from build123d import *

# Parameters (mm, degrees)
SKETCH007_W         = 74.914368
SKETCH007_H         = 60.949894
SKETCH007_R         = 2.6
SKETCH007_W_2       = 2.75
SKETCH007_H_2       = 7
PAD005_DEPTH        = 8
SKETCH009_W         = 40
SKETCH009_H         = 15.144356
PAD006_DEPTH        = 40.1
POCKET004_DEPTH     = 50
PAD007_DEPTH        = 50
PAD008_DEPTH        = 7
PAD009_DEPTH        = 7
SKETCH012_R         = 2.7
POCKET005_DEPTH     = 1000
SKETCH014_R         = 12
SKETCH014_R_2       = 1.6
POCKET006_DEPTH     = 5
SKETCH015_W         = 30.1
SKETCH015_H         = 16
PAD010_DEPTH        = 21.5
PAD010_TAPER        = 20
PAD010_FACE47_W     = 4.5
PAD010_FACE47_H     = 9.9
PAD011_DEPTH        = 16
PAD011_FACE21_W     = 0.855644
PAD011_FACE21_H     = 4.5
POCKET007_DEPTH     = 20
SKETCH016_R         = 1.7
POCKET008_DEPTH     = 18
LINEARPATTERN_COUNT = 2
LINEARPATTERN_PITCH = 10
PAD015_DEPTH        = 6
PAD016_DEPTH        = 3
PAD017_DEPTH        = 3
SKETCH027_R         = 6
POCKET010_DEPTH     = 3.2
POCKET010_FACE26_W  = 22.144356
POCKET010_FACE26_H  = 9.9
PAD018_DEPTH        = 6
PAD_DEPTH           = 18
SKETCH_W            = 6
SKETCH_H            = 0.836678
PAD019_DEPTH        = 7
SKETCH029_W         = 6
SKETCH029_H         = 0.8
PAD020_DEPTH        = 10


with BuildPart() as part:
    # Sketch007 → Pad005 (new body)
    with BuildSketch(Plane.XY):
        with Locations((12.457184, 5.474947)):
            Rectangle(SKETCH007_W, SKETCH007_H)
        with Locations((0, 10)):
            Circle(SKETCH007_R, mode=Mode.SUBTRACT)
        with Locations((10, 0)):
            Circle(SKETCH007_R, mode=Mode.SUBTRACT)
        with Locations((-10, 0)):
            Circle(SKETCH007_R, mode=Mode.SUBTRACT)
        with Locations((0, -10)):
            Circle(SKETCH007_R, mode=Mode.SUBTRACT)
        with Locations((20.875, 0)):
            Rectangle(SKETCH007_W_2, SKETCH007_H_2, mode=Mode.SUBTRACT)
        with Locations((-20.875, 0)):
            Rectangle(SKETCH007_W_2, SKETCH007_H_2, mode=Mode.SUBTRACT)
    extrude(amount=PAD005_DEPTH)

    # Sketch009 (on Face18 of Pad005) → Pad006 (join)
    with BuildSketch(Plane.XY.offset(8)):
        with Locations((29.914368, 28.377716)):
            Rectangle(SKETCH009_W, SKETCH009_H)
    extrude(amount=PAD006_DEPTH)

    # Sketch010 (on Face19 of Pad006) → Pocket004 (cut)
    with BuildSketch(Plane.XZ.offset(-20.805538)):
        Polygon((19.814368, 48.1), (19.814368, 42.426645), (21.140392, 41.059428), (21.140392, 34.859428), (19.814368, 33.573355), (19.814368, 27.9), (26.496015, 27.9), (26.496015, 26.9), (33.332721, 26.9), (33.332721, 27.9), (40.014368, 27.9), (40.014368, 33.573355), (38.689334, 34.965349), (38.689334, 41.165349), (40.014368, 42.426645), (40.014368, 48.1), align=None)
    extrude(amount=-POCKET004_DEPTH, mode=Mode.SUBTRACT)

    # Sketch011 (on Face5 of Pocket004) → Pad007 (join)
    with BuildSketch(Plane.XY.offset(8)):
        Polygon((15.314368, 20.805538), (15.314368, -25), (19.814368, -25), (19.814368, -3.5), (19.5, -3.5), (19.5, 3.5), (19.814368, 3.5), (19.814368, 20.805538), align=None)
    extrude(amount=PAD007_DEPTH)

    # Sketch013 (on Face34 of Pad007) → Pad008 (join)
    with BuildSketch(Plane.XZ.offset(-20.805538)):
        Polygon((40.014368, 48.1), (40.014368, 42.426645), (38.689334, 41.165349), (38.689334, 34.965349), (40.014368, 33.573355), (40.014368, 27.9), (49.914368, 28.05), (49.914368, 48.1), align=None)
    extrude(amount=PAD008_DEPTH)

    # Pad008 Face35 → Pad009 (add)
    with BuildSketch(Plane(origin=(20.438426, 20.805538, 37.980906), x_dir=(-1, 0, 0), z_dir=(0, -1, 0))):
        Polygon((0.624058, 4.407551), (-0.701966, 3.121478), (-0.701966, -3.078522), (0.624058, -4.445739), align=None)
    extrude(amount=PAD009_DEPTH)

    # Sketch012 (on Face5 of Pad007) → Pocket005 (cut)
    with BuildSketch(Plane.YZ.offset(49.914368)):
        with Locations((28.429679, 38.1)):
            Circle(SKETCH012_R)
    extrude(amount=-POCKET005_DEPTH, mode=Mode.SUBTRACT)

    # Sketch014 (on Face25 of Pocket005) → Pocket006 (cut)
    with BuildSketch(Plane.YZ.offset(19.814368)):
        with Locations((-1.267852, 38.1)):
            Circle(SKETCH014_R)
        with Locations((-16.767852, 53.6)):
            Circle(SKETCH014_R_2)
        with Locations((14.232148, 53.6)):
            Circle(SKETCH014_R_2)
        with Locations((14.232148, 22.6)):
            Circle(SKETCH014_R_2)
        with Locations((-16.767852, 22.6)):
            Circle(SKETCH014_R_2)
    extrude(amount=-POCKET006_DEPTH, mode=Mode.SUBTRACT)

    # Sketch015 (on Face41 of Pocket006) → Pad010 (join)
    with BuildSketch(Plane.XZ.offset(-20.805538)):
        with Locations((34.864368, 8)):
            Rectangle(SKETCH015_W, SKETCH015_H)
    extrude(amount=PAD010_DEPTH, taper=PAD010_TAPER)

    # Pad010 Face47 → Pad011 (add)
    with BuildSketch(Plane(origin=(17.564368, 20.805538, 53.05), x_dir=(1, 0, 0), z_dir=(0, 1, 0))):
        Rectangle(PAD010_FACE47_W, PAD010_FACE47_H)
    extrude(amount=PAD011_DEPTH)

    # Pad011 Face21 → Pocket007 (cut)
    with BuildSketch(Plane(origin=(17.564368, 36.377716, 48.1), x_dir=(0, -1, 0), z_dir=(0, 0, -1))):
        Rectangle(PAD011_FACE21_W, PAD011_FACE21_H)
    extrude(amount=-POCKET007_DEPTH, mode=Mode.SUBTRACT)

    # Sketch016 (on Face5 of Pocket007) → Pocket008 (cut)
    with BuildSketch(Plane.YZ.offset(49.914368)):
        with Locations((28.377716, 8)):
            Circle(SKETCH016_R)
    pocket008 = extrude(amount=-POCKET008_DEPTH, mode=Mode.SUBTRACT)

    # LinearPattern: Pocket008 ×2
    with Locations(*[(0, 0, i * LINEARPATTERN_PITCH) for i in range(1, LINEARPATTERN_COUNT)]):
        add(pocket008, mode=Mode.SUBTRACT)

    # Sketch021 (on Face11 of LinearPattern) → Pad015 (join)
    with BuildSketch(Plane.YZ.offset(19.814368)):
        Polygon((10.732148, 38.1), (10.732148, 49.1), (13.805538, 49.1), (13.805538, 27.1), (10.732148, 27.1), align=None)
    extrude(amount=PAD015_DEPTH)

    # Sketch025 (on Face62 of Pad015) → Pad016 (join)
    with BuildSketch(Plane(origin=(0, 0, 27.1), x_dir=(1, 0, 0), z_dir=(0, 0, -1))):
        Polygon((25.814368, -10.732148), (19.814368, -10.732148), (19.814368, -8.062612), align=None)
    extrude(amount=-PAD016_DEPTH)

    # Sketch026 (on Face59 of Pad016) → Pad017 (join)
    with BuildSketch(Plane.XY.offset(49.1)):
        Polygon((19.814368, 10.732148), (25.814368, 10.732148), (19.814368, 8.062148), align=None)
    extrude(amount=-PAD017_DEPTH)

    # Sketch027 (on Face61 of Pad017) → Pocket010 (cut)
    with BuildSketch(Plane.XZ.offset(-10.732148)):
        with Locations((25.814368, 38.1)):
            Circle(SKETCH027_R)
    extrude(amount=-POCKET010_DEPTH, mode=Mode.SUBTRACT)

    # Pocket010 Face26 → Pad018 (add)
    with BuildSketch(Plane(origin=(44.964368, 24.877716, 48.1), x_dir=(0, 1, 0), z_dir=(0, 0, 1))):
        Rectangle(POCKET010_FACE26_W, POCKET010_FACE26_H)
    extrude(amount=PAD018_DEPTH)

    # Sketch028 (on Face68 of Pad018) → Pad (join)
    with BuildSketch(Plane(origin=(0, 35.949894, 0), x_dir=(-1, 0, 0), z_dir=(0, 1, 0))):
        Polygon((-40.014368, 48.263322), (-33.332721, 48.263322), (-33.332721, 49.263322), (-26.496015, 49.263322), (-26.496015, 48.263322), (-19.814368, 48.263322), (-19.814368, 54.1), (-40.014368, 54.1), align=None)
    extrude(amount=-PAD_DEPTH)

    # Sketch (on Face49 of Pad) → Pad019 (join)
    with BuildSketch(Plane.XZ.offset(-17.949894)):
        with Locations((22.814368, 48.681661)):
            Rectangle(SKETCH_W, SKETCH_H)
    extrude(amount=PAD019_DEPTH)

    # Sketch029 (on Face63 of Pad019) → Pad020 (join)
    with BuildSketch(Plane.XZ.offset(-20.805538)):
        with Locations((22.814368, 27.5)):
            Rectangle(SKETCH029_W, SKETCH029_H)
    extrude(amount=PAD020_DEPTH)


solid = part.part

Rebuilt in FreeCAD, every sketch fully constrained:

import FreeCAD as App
import Part
import Sketcher
from FreeCAD import Vector
Q = App.Units.Quantity


def add_polygon(sketch, points):
    """Adds a closed chain of lines whose ends are joined by coincident constraints."""
    first, n = sketch.GeometryCount, len(points)
    for a, b in zip(points, points[1:] + points[:1]):
        sketch.addGeometry(Part.LineSegment(App.Vector(*a, 0), App.Vector(*b, 0)), False)
    for i in range(n):
        sketch.addConstraint(Sketcher.Constraint("Coincident", first + i, 2, first + (i + 1) % n, 1))

doc = App.newDocument("Part")
body = doc.addObject("PartDesign::Body", "Body")

# Sketch on XY plane
sketch1 = body.newObject("Sketcher::SketchObject", "Sketch")
sketch1.AttachmentSupport = (doc.getObject("XY_Plane"), [""])
sketch1.MapMode = "FlatFace"
add_polygon(sketch1, [(-25, 35.9), (-25, -25), (49.9, -25), (49.9, 35.9)])  # lines 0-3
sketch1.addGeometry(Part.Circle(Vector(0, -10, 0), Vector(0, 0, 1), 2.6), False)  # 4
add_polygon(sketch1, [(-19.5, -3.5), (-22.2, -3.5), (-22.2, 3.5), (-19.5, 3.5)])  # lines 5-8
sketch1.addGeometry(Part.Circle(Vector(-10, 0, 0), Vector(0, 0, 1), 2.6), False)  # 9
sketch1.addGeometry(Part.Circle(Vector(10, 0, 0), Vector(0, 0, 1), 2.6), False)  # 10
add_polygon(sketch1, [(22.2, -3.5), (19.5, -3.5), (19.5, 3.5), (22.2, 3.5)])  # lines 11-14
sketch1.addGeometry(Part.Circle(Vector(0, 10, 0), Vector(0, 0, 1), 2.6), False)  # 15
sketch1.addConstraint([
    Sketcher.Constraint("Vertical", 0),
    Sketcher.Constraint("Horizontal", 1),
    Sketcher.Constraint("Vertical", 2),
    Sketcher.Constraint("Horizontal", 3),
    Sketcher.Constraint("Horizontal", 5),
    Sketcher.Constraint("Vertical", 6),
    Sketcher.Constraint("Horizontal", 7),
    Sketcher.Constraint("Vertical", 8),
    Sketcher.Constraint("Horizontal", 11),
    Sketcher.Constraint("Vertical", 12),
    Sketcher.Constraint("Horizontal", 13),
    Sketcher.Constraint("Vertical", 14),
    Sketcher.Constraint("Equal", 4, 9),
    Sketcher.Constraint("Equal", 9, 10),
    Sketcher.Constraint("Equal", 10, 15),
    Sketcher.Constraint("Symmetric", 9, 3, 10, 3, -1, 1),
    Sketcher.Constraint("Symmetric", 4, 3, 15, 3, -1, 1),
    Sketcher.Constraint("Symmetric", 7, 2, 11, 2, -1, 1),
    Sketcher.Constraint("Symmetric", 5, 2, 13, 2, -1, 1),
    Sketcher.Constraint("PointOnObject", 4, 3, -2),
    Sketcher.Constraint("PointOnObject", 9, 3, -1),
    Sketcher.Constraint("Horizontal", 8, 2, 11, 2),
    Sketcher.Constraint("Diameter", 4, Q("5.2 mm")),
    Sketcher.Constraint("DistanceY", 6, 1, 6, 2, Q("7 mm")),
    Sketcher.Constraint("DistanceY", 4, 3, -1, 1, Q("10 mm")),
    Sketcher.Constraint("DistanceX", 9, 3, -1, 1, Q("10 mm")),
    Sketcher.Constraint("DistanceX", 0, 2, -1, 1, Q("25 mm")),
    Sketcher.Constraint("DistanceY", 0, 2, -1, 1, Q("25 mm")),
    Sketcher.Constraint("DistanceX", 5, 2, 5, 1, Q("2.75 mm")),
    Sketcher.Constraint("DistanceX", 7, 2, -1, 1, Q("19.5 mm")),
    Sketcher.Constraint("DistanceX", 1, 1, 1, 2, Q("74.914368 mm")),
    Sketcher.Constraint("DistanceY", 0, 2, 0, 1, Q("60.949894 mm")),
])
pad1 = body.newObject("PartDesign::Pad", "Pad")
pad1.Profile = sketch1
pad1.Length = 8

# Sketch on XY plane
sketch2 = body.newObject("Sketcher::SketchObject", "Sketch001")
sketch2.AttachmentSupport = (doc.getObject("XY_Plane"), [""])
sketch2.MapMode = "FlatFace"
sketch2.AttachmentOffset = App.Placement(Vector(0, 0, 8), App.Rotation())
add_polygon(sketch2, [(10, 36), (10, 21), (50, 21), (50, 36)])  # lines 0-3
sketch2.addConstraint([
    Sketcher.Constraint("Vertical", 0),
    Sketcher.Constraint("Horizontal", 1),
    Sketcher.Constraint("Vertical", 2),
    Sketcher.Constraint("Horizontal", 3),
    Sketcher.Constraint("DistanceX", 1, 1, 1, 2, Q("40 mm")),
    Sketcher.Constraint("DistanceY", 0, 2, 0, 1, Q("15.144356 mm")),
    Sketcher.Constraint("DistanceX", -1, 1, 1, 2, Q("49.914368 mm")),
    Sketcher.Constraint("DistanceY", -1, 1, 0, 2, Q("20.805538 mm")),
])
pad2 = body.newObject("PartDesign::Pad", "Pad001")
pad2.Profile = sketch2
pad2.Length = 40.1

# Sketch on XZ plane
sketch3 = body.newObject("Sketcher::SketchObject", "Sketch002")
sketch3.AttachmentSupport = (doc.getObject("XZ_Plane"), [""])
sketch3.MapMode = "FlatFace"
sketch3.AttachmentOffset = App.Placement(Vector(0, 0, -20.805538), App.Rotation())
add_polygon(sketch3, [(19.8, 48.1), (19.8, 42.4), (21.1, 41.1), (21.1, 34.9), (19.8, 33.6), (19.8, 27.9), (26.5, 27.9), (26.5, 26.9), (33.3, 26.9), (33.3, 27.9), (40, 27.9), (40, 33.6), (38.7, 35), (38.7, 41.2), (40, 42.4), (40, 48.1)])  # lines 0-15
sketch3.addConstraint([
    Sketcher.Constraint("Vertical", 0),
    Sketcher.Constraint("Vertical", 2),
    Sketcher.Constraint("Vertical", 4),
    Sketcher.Constraint("Horizontal", 5),
    Sketcher.Constraint("Vertical", 6),
    Sketcher.Constraint("Horizontal", 7),
    Sketcher.Constraint("Vertical", 8),
    Sketcher.Constraint("Horizontal", 9),
    Sketcher.Constraint("Vertical", 10),
    Sketcher.Constraint("Vertical", 12),
    Sketcher.Constraint("Vertical", 14),
    Sketcher.Constraint("Horizontal", 15),
    Sketcher.Constraint("Perpendicular", 1, 3),
    Sketcher.Constraint("Perpendicular", 11, 13),
    Sketcher.Constraint("Horizontal", 5, 2, 8, 2),
    Sketcher.Constraint("Horizontal", 3, 2, 10, 2),
    Sketcher.Constraint("Horizontal", 0, 2, 13, 2),
    Sketcher.Constraint("Vertical", 0, 2, 3, 2),
    Sketcher.Constraint("Vertical", 10, 2, 13, 2),
    Sketcher.Constraint("Equal", 5, 9),
    Sketcher.Constraint("Equal", 0, 4),
    Sketcher.Constraint("Equal", 2, 12),
    Sketcher.Constraint("DistanceY", 6, 2, 6, 1, Q("1 mm")),
    Sketcher.Constraint("DistanceX", 15, 2, 15, 1, Q("20.2 mm")),
    Sketcher.Constraint("DistanceY", 2, 2, 2, 1, Q("6.2 mm")),
    Sketcher.Constraint("DistanceY", -1, 1, 4, 2, Q("27.9 mm")),
    Sketcher.Constraint("DistanceY", -1, 1, 14, 2, Q("48.1 mm")),
    Sketcher.Constraint("Distance", 1, Q("1.904632 mm")),
    Sketcher.Constraint("DistanceX", 5, 1, 5, 2, Q("6.681647 mm")),
    Sketcher.Constraint("DistanceY", 0, 2, 0, 1, Q("5.673355 mm")),
    Sketcher.Constraint("DistanceX", -1, 1, 0, 2, Q("19.814368 mm")),
    Sketcher.Constraint("DistanceY", -1, 1, 11, 2, Q("34.965349 mm")),
])
pocket1 = body.newObject("PartDesign::Pocket", "Pocket")
pocket1.Profile = sketch3
pocket1.Length = 50

# Sketch on XY plane
sketch4 = body.newObject("Sketcher::SketchObject", "Sketch003")
sketch4.AttachmentSupport = (doc.getObject("XY_Plane"), [""])
sketch4.MapMode = "FlatFace"
sketch4.AttachmentOffset = App.Placement(Vector(0, 0, 8), App.Rotation())
add_polygon(sketch4, [(15.31, 20.81), (15.31, -25), (19.81, -25), (19.81, -3.5), (19.5, -3.5), (19.5, 3.5), (19.81, 3.5), (19.81, 20.81)])  # lines 0-7
sketch4.addConstraint([
    Sketcher.Constraint("Vertical", 0),
    Sketcher.Constraint("Horizontal", 1),
    Sketcher.Constraint("Vertical", 2),
    Sketcher.Constraint("Horizontal", 3),
    Sketcher.Constraint("Vertical", 4),
    Sketcher.Constraint("Horizontal", 5),
    Sketcher.Constraint("Vertical", 6),
    Sketcher.Constraint("Horizontal", 7),
    Sketcher.Constraint("Symmetric", 2, 2, 5, 2, -1),
    Sketcher.Constraint("DistanceY", 4, 1, 4, 2, Q("7 mm")),
    Sketcher.Constraint("DistanceX", 1, 1, 1, 2, Q("4.5 mm")),
    Sketcher.Constraint("DistanceY", 2, 1, 2, 2, Q("21.5 mm")),
    Sketcher.Constraint("DistanceX", -1, 1, 3, 2, Q("19.5 mm")),
    Sketcher.Constraint("DistanceX", 3, 2, 3, 1, Q("0.314368 mm")),
    Sketcher.Constraint("DistanceY", 0, 2, 0, 1, Q("45.805538 mm")),
])
pad3 = body.newObject("PartDesign::Pad", "Pad002")
pad3.Profile = sketch4
pad3.Length = 50

# Sketch on XZ plane
sketch5 = body.newObject("Sketcher::SketchObject", "Sketch004")
sketch5.AttachmentSupport = (doc.getObject("XZ_Plane"), [""])
sketch5.MapMode = "FlatFace"
sketch5.AttachmentOffset = App.Placement(Vector(0, 0, -20.805538), App.Rotation())
add_polygon(sketch5, [(40, 48.1), (40, 42.4), (38.7, 41.2), (38.7, 35), (40, 33.6), (40, 27.9), (49.9, 28.1), (49.9, 48.1)])  # lines 0-7
sketch5.addConstraint([
    Sketcher.Constraint("Vertical", 0),
    Sketcher.Constraint("Vertical", 2),
    Sketcher.Constraint("Vertical", 4),
    Sketcher.Constraint("Vertical", 6),
    Sketcher.Constraint("Horizontal", 7),
    Sketcher.Constraint("Perpendicular", 1, 3),
    Sketcher.Constraint("Vertical", 0, 2, 3, 2),
    Sketcher.Constraint("Equal", 0, 4),
    Sketcher.Constraint("DistanceX", 7, 2, 7, 1, Q("9.9 mm")),
    Sketcher.Constraint("DistanceY", 2, 2, 2, 1, Q("6.2 mm")),
    Sketcher.Constraint("DistanceY", 6, 1, 6, 2, Q("20.05 mm")),
    Sketcher.Constraint("DistanceY", -1, 1, 4, 2, Q("27.9 mm")),
    Sketcher.Constraint("DistanceY", -1, 1, 6, 2, Q("48.1 mm")),
    Sketcher.Constraint("DistanceY", 0, 2, 0, 1, Q("5.673355 mm")),
    Sketcher.Constraint("DistanceY", -1, 1, 1, 2, Q("41.165349 mm")),
    Sketcher.Constraint("DistanceX", -1, 1, 5, 2, Q("49.914368 mm")),
])
pad4 = body.newObject("PartDesign::Pad", "Pad003")
pad4.Profile = sketch5
pad4.Length = 7

# Sketch on XZ plane
sketch6 = body.newObject("Sketcher::SketchObject", "Sketch005")
sketch6.AttachmentSupport = (doc.getObject("XZ_Plane"), [""])
sketch6.MapMode = "FlatFace"
sketch6.AttachmentOffset = App.Placement(Vector(0, 0, -20.805538), App.Rotation())
add_polygon(sketch6, [(19.8, 33.6), (21.1, 34.9), (21.1, 41.1), (19.8, 42.4)])  # lines 0-3
sketch6.addConstraint([
    Sketcher.Constraint("Vertical", 1),
    Sketcher.Constraint("Vertical", 3),
    Sketcher.Constraint("Perpendicular", 0, 2),
    Sketcher.Constraint("DistanceY", 1, 1, 1, 2, Q("6.2 mm")),
    Sketcher.Constraint("DistanceY", 3, 2, 3, 1, Q("8.85329 mm")),
    Sketcher.Constraint("Distance", 2, Q("1.904632 mm")),
    Sketcher.Constraint("DistanceX", -1, 1, 0, 2, Q("21.140392 mm")),
    Sketcher.Constraint("DistanceY", -1, 1, 0, 2, Q("34.859428 mm")),
])
pad5 = body.newObject("PartDesign::Pad", "Pad004")
pad5.Profile = sketch6
pad5.Length = 7

# Sketch on YZ plane
sketch7 = body.newObject("Sketcher::SketchObject", "Sketch006")
sketch7.AttachmentSupport = (doc.getObject("YZ_Plane"), [""])
sketch7.MapMode = "FlatFace"
sketch7.AttachmentOffset = App.Placement(Vector(0, 0, 49.914368), App.Rotation())
sketch7.addGeometry(Part.Circle(Vector(28.4, 38.1, 0), Vector(0, 0, 1), 2.7), False)
sketch7.addConstraint([
    Sketcher.Constraint("Diameter", 0, Q("5.4 mm")),
    Sketcher.Constraint("DistanceY", -1, 1, 0, 3, Q("38.1 mm")),
    Sketcher.Constraint("DistanceX", -1, 1, 0, 3, Q("28.429679 mm")),
])
pocket2 = body.newObject("PartDesign::Pocket", "Pocket001")
pocket2.Profile = sketch7
pocket2.Length = 1000

# Sketch on YZ plane
sketch8 = body.newObject("Sketcher::SketchObject", "Sketch007")
sketch8.AttachmentSupport = (doc.getObject("YZ_Plane"), [""])
sketch8.MapMode = "FlatFace"
sketch8.AttachmentOffset = App.Placement(Vector(0, 0, 19.814368), App.Rotation())
sketch8.addGeometry([
    Part.Circle(Vector(-1.3, 38.1, 0), Vector(0, 0, 1), 12),  # 0
    Part.Circle(Vector(-16.8, 53.6, 0), Vector(0, 0, 1), 1.6),  # 1
    Part.Circle(Vector(14.2, 53.6, 0), Vector(0, 0, 1), 1.6),  # 2
    Part.Circle(Vector(14.2, 22.6, 0), Vector(0, 0, 1), 1.6),  # 3
    Part.Circle(Vector(-16.8, 22.6, 0), Vector(0, 0, 1), 1.6),  # 4
], False)
sketch8.addConstraint([
    Sketcher.Constraint("Equal", 1, 2),
    Sketcher.Constraint("Equal", 2, 3),
    Sketcher.Constraint("Equal", 3, 4),
    Sketcher.Constraint("Horizontal", 1, 3, 2, 3),
    Sketcher.Constraint("Horizontal", 3, 3, 4, 3),
    Sketcher.Constraint("Vertical", 2, 3, 3, 3),
    Sketcher.Constraint("Vertical", 1, 3, 4, 3),
    Sketcher.Constraint("Diameter", 0, Q("24 mm")),
    Sketcher.Constraint("Diameter", 1, Q("3.2 mm")),
    Sketcher.Constraint("DistanceX", 1, 3, 2, 3, Q("31 mm")),
    Sketcher.Constraint("DistanceY", 3, 3, 2, 3, Q("31 mm")),
    Sketcher.Constraint("DistanceY", -1, 1, 0, 3, Q("38.1 mm")),
    Sketcher.Constraint("DistanceY", -1, 1, 1, 3, Q("53.6 mm")),
    Sketcher.Constraint("DistanceX", 1, 3, 0, 3, Q("15.5 mm")),
    Sketcher.Constraint("DistanceX", 0, 3, -1, 1, Q("1.267852 mm")),
])
pocket3 = body.newObject("PartDesign::Pocket", "Pocket002")
pocket3.Profile = sketch8
pocket3.Length = 5

# Sketch on XZ plane
sketch9 = body.newObject("Sketcher::SketchObject", "Sketch008")
sketch9.AttachmentSupport = (doc.getObject("XZ_Plane"), [""])
sketch9.MapMode = "FlatFace"
sketch9.AttachmentOffset = App.Placement(Vector(0, 0, -20.805538), App.Rotation())
add_polygon(sketch9, [(20, 16), (20, 0), (50, 0), (50, 16)])  # lines 0-3
sketch9.addConstraint([
    Sketcher.Constraint("Vertical", 0),
    Sketcher.Constraint("Horizontal", 1),
    Sketcher.Constraint("Vertical", 2),
    Sketcher.Constraint("Horizontal", 3),
    Sketcher.Constraint("PointOnObject", 0, 2, -1),
    Sketcher.Constraint("DistanceY", 0, 2, 0, 1, Q("16 mm")),
    Sketcher.Constraint("DistanceX", 1, 1, 1, 2, Q("30.1 mm")),
    Sketcher.Constraint("DistanceX", -1, 1, 0, 2, Q("19.814368 mm")),
])
pad6 = body.newObject("PartDesign::Pad", "Pad005")
pad6.Profile = sketch9
pad6.Length = 21.5
pad6.TaperAngle = -20

# Sketch on XZ plane
sketch10 = body.newObject("Sketcher::SketchObject", "Sketch009")
sketch10.AttachmentSupport = (doc.getObject("XZ_Plane"), [""])
sketch10.MapMode = "FlatFace"
sketch10.AttachmentOffset = App.Placement(Vector(0, 0, -20.805538), App.Rotation())
add_polygon(sketch10, [(15.3, 48.1), (15.3, 58), (19.8, 58), (19.8, 48.1)])  # lines 0-3
sketch10.addConstraint([
    Sketcher.Constraint("Vertical", 0),
    Sketcher.Constraint("Horizontal", 1),
    Sketcher.Constraint("Vertical", 2),
    Sketcher.Constraint("Horizontal", 3),
    Sketcher.Constraint("DistanceX", 1, 1, 1, 2, Q("4.5 mm")),
    Sketcher.Constraint("DistanceY", 0, 1, 0, 2, Q("9.9 mm")),
    Sketcher.Constraint("DistanceY", -1, 1, 0, 2, Q("58 mm")),
    Sketcher.Constraint("DistanceX", -1, 1, 1, 2, Q("19.814368 mm")),
])
pad7 = body.newObject("PartDesign::Pad", "Pad006")
pad7.Profile = sketch10
pad7.Length = 16
pad7.Reversed = True

# Sketch on XY plane
sketch11 = body.newObject("Sketcher::SketchObject", "Sketch010")
sketch11.AttachmentSupport = (doc.getObject("XY_Plane"), [""])
sketch11.MapMode = "FlatFace"
sketch11.AttachmentOffset = App.Placement(Vector(0, 0, 48.1), App.Rotation())
add_polygon(sketch11, [(15.3, 36.8), (19.8, 36.8), (19.8, 35.9), (15.3, 35.9)])  # lines 0-3
sketch11.addConstraint([
    Sketcher.Constraint("Horizontal", 0),
    Sketcher.Constraint("Vertical", 1),
    Sketcher.Constraint("Horizontal", 2),
    Sketcher.Constraint("Vertical", 3),
    Sketcher.Constraint("DistanceX", 0, 1, 0, 2, Q("4.5 mm")),
    Sketcher.Constraint("DistanceY", 1, 2, 1, 1, Q("0.855644 mm")),
    Sketcher.Constraint("DistanceX", -1, 1, 0, 2, Q("19.814368 mm")),
    Sketcher.Constraint("DistanceY", -1, 1, 0, 2, Q("36.805538 mm")),
])
pocket4 = body.newObject("PartDesign::Pocket", "Pocket003")
pocket4.Profile = sketch11
pocket4.Length = 20
pocket4.Reversed = True

# Sketch on YZ plane
sketch12 = body.newObject("Sketcher::SketchObject", "Sketch011")
sketch12.AttachmentSupport = (doc.getObject("YZ_Plane"), [""])
sketch12.MapMode = "FlatFace"
sketch12.AttachmentOffset = App.Placement(Vector(0, 0, 49.914368), App.Rotation())
sketch12.addGeometry(Part.Circle(Vector(28.4, 8, 0), Vector(0, 0, 1), 1.7), False)
sketch12.addConstraint([
    Sketcher.Constraint("Diameter", 0, Q("3.4 mm")),
    Sketcher.Constraint("DistanceY", -1, 1, 0, 3, Q("8 mm")),
    Sketcher.Constraint("DistanceX", -1, 1, 0, 3, Q("28.377716 mm")),
])
pocket5 = body.newObject("PartDesign::Pocket", "Pocket004")
pocket5.Profile = sketch12
pocket5.Length = 18
doc.recompute()

linearpattern = body.newObject("PartDesign::LinearPattern", "LinearPattern")
linearpattern.Originals = [pocket5]
linearpattern.Direction = (doc.getObject("Z_Axis"), [""])
linearpattern.Mode = "offset"
linearpattern.Offset = 10
linearpattern.Occurrences = 2
body.Tip = linearpattern

# Sketch on YZ plane
sketch13 = body.newObject("Sketcher::SketchObject", "Sketch012")
sketch13.AttachmentSupport = (doc.getObject("YZ_Plane"), [""])
sketch13.MapMode = "FlatFace"
sketch13.AttachmentOffset = App.Placement(Vector(0, 0, 19.814368), App.Rotation())
add_polygon(sketch13, [(10.7, 49.1), (10.7, 27.1), (13.8, 27.1), (13.8, 49.1)])  # lines 0-3
sketch13.addConstraint([
    Sketcher.Constraint("Vertical", 0),
    Sketcher.Constraint("Horizontal", 1),
    Sketcher.Constraint("Vertical", 2),
    Sketcher.Constraint("Horizontal", 3),
    Sketcher.Constraint("DistanceY", 0, 2, 0, 1, Q("22 mm")),
    Sketcher.Constraint("DistanceY", -1, 1, 0, 2, Q("27.1 mm")),
    Sketcher.Constraint("DistanceX", 1, 1, 1, 2, Q("3.07339 mm")),
    Sketcher.Constraint("DistanceX", -1, 1, 0, 2, Q("10.732148 mm")),
])
pad8 = body.newObject("PartDesign::Pad", "Pad007")
pad8.Profile = sketch13
pad8.Length = 6

# Sketch on XY plane
sketch14 = body.newObject("Sketcher::SketchObject", "Sketch013")
sketch14.AttachmentSupport = (doc.getObject("XY_Plane"), [""])
sketch14.MapMode = "FlatFace"
sketch14.AttachmentOffset = App.Placement(Vector(0, 0, 27.1), App.Rotation())
add_polygon(sketch14, [(19.8, 10.7), (25.8, 10.7), (19.8, 8.1)])  # lines 0-2
sketch14.addConstraint([
    Sketcher.Constraint("Horizontal", 0),
    Sketcher.Constraint("Vertical", 2),
    Sketcher.Constraint("DistanceX", 0, 1, 0, 2, Q("6 mm")),
    Sketcher.Constraint("Distance", 1, Q("6.567071 mm")),
    Sketcher.Constraint("DistanceX", -1, 1, 0, 2, Q("25.814368 mm")),
    Sketcher.Constraint("DistanceY", -1, 1, 0, 2, Q("10.732148 mm")),
])
pad9 = body.newObject("PartDesign::Pad", "Pad008")
pad9.Profile = sketch14
pad9.Length = 3

# Sketch on XY plane
sketch15 = body.newObject("Sketcher::SketchObject", "Sketch014")
sketch15.AttachmentSupport = (doc.getObject("XY_Plane"), [""])
sketch15.MapMode = "FlatFace"
sketch15.AttachmentOffset = App.Placement(Vector(0, 0, 49.1), App.Rotation())
add_polygon(sketch15, [(25.8, 10.7), (19.8, 10.7), (19.8, 8.1)])  # lines 0-2
sketch15.addConstraint([
    Sketcher.Constraint("Horizontal", 0),
    Sketcher.Constraint("Vertical", 1),
    Sketcher.Constraint("DistanceX", 0, 2, 0, 1, Q("6 mm")),
    Sketcher.Constraint("DistanceY", 1, 2, 1, 1, Q("2.67 mm")),
    Sketcher.Constraint("DistanceX", -1, 1, 0, 2, Q("19.814368 mm")),
    Sketcher.Constraint("DistanceY", -1, 1, 0, 2, Q("10.732148 mm")),
])
pad10 = body.newObject("PartDesign::Pad", "Pad009")
pad10.Profile = sketch15
pad10.Length = 3
pad10.Reversed = True

# Sketch on XZ plane
sketch16 = body.newObject("Sketcher::SketchObject", "Sketch015")
sketch16.AttachmentSupport = (doc.getObject("XZ_Plane"), [""])
sketch16.MapMode = "FlatFace"
sketch16.AttachmentOffset = App.Placement(Vector(0, 0, -10.732148), App.Rotation())
sketch16.addGeometry(Part.Circle(Vector(26, 38, 0), Vector(0, 0, 1), 6), False)
sketch16.addConstraint([
    Sketcher.Constraint("Diameter", 0, Q("12 mm")),
    Sketcher.Constraint("DistanceY", -1, 1, 0, 3, Q("38.1 mm")),
    Sketcher.Constraint("DistanceX", -1, 1, 0, 3, Q("25.814368 mm")),
])
pocket6 = body.newObject("PartDesign::Pocket", "Pocket005")
pocket6.Profile = sketch16
pocket6.Length = 3.2

# Sketch on XY plane
sketch17 = body.newObject("Sketcher::SketchObject", "Sketch016")
sketch17.AttachmentSupport = (doc.getObject("XY_Plane"), [""])
sketch17.MapMode = "FlatFace"
sketch17.AttachmentOffset = App.Placement(Vector(0, 0, 48.1), App.Rotation())
add_polygon(sketch17, [(40, 14), (50, 14), (50, 36), (40, 36)])  # lines 0-3
sketch17.addConstraint([
    Sketcher.Constraint("Horizontal", 0),
    Sketcher.Constraint("Vertical", 1),
    Sketcher.Constraint("Horizontal", 2),
    Sketcher.Constraint("Vertical", 3),
    Sketcher.Constraint("DistanceX", 0, 1, 0, 2, Q("9.9 mm")),
    Sketcher.Constraint("DistanceY", 1, 1, 1, 2, Q("22.144356 mm")),
    Sketcher.Constraint("DistanceX", -1, 1, 0, 2, Q("49.914368 mm")),
    Sketcher.Constraint("DistanceY", -1, 1, 0, 2, Q("13.805538 mm")),
])
pad11 = body.newObject("PartDesign::Pad", "Pad010")
pad11.Profile = sketch17
pad11.Length = 6

# Sketch on XZ plane
sketch18 = body.newObject("Sketcher::SketchObject", "Sketch017")
sketch18.AttachmentSupport = (doc.getObject("XZ_Plane"), [""])
sketch18.MapMode = "FlatFace"
sketch18.AttachmentOffset = App.Placement(Vector(0, 0, -35.949894), App.Rotation())
add_polygon(sketch18, [(40, 48.3), (33.3, 48.3), (33.3, 49.3), (26.5, 49.3), (26.5, 48.3), (19.8, 48.3), (19.8, 54.1), (40, 54.1)])  # lines 0-7
sketch18.addConstraint([
    Sketcher.Constraint("Horizontal", 0),
    Sketcher.Constraint("Vertical", 1),
    Sketcher.Constraint("Horizontal", 2),
    Sketcher.Constraint("Vertical", 3),
    Sketcher.Constraint("Horizontal", 4),
    Sketcher.Constraint("Vertical", 5),
    Sketcher.Constraint("Horizontal", 6),
    Sketcher.Constraint("Vertical", 7),
    Sketcher.Constraint("Horizontal", 0, 2, 3, 2),
    Sketcher.Constraint("Equal", 0, 4),
    Sketcher.Constraint("DistanceY", 1, 1, 1, 2, Q("1 mm")),
    Sketcher.Constraint("DistanceX", 6, 1, 6, 2, Q("20.2 mm")),
    Sketcher.Constraint("DistanceY", -1, 1, 5, 2, Q("54.1 mm")),
    Sketcher.Constraint("DistanceX", 0, 2, 0, 1, Q("6.681647 mm")),
    Sketcher.Constraint("DistanceY", 5, 1, 5, 2, Q("5.836678 mm")),
    Sketcher.Constraint("DistanceX", -1, 1, 0, 2, Q("33.332721 mm")),
])
pad12 = body.newObject("PartDesign::Pad", "Pad011")
pad12.Profile = sketch18
pad12.Length = 18

# Sketch on XZ plane
sketch19 = body.newObject("Sketcher::SketchObject", "Sketch018")
sketch19.AttachmentSupport = (doc.getObject("XZ_Plane"), [""])
sketch19.MapMode = "FlatFace"
sketch19.AttachmentOffset = App.Placement(Vector(0, 0, -17.949894), App.Rotation())
add_polygon(sketch19, [(19.8, 49.1), (19.8, 48.3), (25.8, 48.3), (25.8, 49.1)])  # lines 0-3
sketch19.addConstraint([
    Sketcher.Constraint("Vertical", 0),
    Sketcher.Constraint("Horizontal", 1),
    Sketcher.Constraint("Vertical", 2),
    Sketcher.Constraint("Horizontal", 3),
    Sketcher.Constraint("DistanceX", 1, 1, 1, 2, Q("6 mm")),
    Sketcher.Constraint("DistanceY", -1, 1, 2, 2, Q("49.1 mm")),
    Sketcher.Constraint("DistanceY", 0, 2, 0, 1, Q("0.836678 mm")),
    Sketcher.Constraint("DistanceX", -1, 1, 0, 2, Q("19.814368 mm")),
])
pad13 = body.newObject("PartDesign::Pad", "Pad012")
pad13.Profile = sketch19
pad13.Length = 7

# Sketch on XZ plane
sketch20 = body.newObject("Sketcher::SketchObject", "Sketch019")
sketch20.AttachmentSupport = (doc.getObject("XZ_Plane"), [""])
sketch20.MapMode = "FlatFace"
sketch20.AttachmentOffset = App.Placement(Vector(0, 0, -20.805538), App.Rotation())
add_polygon(sketch20, [(19.8, 27.9), (19.8, 27.1), (25.8, 27.1), (25.8, 27.9)])  # lines 0-3
sketch20.addConstraint([
    Sketcher.Constraint("Vertical", 0),
    Sketcher.Constraint("Horizontal", 1),
    Sketcher.Constraint("Vertical", 2),
    Sketcher.Constraint("Horizontal", 3),
    Sketcher.Constraint("DistanceX", 1, 1, 1, 2, Q("6 mm")),
    Sketcher.Constraint("DistanceY", 0, 2, 0, 1, Q("0.8 mm")),
    Sketcher.Constraint("DistanceY", -1, 1, 0, 2, Q("27.1 mm")),
    Sketcher.Constraint("DistanceX", -1, 1, 0, 2, Q("19.814368 mm")),
])
pad14 = body.newObject("PartDesign::Pad", "Pad013")
pad14.Profile = sketch20
pad14.Length = 10

doc.recompute()
